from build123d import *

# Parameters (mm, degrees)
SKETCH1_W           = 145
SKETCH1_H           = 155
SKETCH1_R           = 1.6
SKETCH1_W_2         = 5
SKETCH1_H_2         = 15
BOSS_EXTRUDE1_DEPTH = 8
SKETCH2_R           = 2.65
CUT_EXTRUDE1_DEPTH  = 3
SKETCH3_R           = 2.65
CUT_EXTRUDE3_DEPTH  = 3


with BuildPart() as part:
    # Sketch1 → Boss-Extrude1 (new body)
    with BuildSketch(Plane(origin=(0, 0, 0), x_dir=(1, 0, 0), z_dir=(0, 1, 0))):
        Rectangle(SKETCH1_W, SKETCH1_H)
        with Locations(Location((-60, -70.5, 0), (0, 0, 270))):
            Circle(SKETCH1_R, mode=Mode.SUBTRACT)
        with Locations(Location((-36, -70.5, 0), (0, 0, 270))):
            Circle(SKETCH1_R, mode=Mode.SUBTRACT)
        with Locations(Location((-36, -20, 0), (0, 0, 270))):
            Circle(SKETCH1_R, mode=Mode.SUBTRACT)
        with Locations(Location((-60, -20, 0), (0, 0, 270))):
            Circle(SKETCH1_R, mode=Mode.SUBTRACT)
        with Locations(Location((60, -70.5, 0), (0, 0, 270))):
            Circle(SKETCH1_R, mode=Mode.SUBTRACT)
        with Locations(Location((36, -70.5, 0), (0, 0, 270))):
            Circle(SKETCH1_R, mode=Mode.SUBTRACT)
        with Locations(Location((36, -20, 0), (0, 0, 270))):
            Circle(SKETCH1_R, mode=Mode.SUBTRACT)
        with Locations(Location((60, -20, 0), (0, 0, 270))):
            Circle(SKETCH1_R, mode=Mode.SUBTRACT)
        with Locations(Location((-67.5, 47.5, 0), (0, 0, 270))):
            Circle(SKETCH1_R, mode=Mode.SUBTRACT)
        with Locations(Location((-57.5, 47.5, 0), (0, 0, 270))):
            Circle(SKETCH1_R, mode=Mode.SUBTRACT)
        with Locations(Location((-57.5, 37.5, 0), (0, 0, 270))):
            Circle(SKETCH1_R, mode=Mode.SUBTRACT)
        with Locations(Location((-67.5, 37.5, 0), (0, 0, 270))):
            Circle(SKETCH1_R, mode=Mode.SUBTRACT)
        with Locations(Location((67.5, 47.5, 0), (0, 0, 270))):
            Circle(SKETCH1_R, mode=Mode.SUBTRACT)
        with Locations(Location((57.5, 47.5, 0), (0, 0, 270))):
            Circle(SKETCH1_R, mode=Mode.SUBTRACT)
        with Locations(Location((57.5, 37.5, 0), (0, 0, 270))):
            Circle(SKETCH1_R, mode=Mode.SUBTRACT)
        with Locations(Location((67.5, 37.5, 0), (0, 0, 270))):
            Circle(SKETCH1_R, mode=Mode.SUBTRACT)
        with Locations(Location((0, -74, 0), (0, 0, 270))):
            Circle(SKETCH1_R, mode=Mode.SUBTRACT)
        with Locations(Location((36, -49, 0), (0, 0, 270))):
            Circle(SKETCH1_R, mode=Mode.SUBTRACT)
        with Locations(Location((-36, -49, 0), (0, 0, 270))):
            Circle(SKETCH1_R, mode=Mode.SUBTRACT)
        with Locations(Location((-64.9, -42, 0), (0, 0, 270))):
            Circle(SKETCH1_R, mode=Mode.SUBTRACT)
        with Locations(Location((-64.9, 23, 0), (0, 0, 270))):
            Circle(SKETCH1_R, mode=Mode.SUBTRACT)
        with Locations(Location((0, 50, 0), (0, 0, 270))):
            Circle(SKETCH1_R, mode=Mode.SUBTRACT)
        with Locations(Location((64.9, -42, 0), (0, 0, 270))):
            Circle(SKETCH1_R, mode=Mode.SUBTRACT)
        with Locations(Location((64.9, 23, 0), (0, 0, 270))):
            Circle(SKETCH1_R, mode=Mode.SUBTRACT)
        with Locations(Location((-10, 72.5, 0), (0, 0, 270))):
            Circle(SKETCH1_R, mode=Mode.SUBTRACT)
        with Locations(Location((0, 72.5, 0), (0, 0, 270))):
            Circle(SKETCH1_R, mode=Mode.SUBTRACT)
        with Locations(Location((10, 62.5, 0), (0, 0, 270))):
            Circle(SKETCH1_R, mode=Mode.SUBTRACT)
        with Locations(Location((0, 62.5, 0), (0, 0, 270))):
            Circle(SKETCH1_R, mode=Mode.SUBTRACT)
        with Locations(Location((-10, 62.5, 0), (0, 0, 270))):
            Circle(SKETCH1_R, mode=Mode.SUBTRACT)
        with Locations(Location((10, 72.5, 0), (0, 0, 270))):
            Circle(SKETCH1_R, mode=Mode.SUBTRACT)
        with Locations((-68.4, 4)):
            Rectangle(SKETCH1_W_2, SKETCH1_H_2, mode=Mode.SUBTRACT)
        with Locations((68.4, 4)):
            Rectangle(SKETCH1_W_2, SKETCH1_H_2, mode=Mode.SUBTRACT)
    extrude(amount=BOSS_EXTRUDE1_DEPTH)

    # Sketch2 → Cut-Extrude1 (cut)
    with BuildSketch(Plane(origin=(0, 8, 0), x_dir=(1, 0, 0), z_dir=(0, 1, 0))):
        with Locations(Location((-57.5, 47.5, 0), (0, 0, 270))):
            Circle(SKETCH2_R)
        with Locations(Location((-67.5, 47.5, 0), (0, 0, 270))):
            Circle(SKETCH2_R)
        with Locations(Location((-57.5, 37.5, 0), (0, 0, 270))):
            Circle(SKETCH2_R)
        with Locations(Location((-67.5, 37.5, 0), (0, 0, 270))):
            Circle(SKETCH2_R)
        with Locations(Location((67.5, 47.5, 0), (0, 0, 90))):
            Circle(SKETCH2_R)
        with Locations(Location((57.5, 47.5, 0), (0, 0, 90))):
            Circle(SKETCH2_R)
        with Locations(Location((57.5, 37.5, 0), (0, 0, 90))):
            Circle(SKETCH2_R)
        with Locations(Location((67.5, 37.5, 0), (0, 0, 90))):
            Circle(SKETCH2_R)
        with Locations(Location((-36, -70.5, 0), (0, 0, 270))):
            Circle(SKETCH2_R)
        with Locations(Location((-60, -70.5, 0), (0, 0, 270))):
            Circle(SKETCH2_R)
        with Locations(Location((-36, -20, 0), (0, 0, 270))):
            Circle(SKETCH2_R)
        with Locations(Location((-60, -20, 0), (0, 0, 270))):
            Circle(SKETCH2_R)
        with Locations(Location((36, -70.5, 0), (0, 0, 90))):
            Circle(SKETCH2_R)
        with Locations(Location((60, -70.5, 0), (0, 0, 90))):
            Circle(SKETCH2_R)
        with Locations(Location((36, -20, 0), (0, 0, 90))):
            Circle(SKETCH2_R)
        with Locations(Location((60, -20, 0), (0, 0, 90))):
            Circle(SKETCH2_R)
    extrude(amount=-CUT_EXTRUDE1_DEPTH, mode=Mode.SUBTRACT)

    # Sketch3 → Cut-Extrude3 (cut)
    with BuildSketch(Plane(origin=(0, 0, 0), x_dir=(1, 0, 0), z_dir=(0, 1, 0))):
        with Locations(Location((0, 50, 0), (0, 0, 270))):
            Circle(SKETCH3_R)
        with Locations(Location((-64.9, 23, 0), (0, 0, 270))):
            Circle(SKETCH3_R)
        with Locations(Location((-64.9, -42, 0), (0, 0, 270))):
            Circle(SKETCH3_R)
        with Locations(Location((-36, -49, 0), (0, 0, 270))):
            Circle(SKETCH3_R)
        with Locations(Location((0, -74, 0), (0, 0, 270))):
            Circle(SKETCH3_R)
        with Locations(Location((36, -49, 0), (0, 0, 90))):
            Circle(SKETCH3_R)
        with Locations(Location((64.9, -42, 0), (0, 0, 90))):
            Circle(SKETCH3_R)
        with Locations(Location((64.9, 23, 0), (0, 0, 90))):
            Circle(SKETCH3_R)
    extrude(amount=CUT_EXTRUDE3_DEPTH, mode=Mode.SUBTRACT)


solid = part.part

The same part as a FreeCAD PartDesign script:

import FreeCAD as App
import Part
import Sketcher
from FreeCAD import Vector

doc = App.newDocument("Part")
params = doc.addObject("Spreadsheet::Sheet", "Params")
for row, (alias, value) in enumerate([
    ("sketch1_diameter", "3.2 mm"),
    ("sketch1_width", "145 mm"),
    ("sketch1_width2", "5 mm"),
    ("sketch1_height", "155 mm"),
    ("sketch1_height2", "15 mm"),
    ("pad1_length", "8 mm"),
    ("sketch2_diameter", "5.3 mm"),
    ("pocket1_length", "3 mm"),
    ("sketch3_diameter", "5.3 mm"),
    ("pocket2_length", "3 mm"),
], start=1):
    params.set(f"A{row}", alias)
    params.set(f"B{row}", "=" + value)
    params.setAlias(f"B{row}", alias)

body = doc.addObject("PartDesign::Body", "Body")

sketch1 = body.newObject("Sketcher::SketchObject", "Sketch")
sketch1.AttachmentSupport = (doc.getObject("XZ_Plane"), [""])
sketch1.MapMode = "FlatFace"
sketch1.addGeometry([
    Part.LineSegment(Vector(-72.5, -77.5, 0), Vector(-72.5, 77.5, 0)),
    Part.LineSegment(Vector(-72.5, 77.5, 0), Vector(72.5, 77.5, 0)),
    Part.LineSegment(Vector(72.5, 77.5, 0), Vector(72.5, -77.5, 0)),
    Part.LineSegment(Vector(72.5, -77.5, 0), Vector(-72.5, -77.5, 0)),
    Part.Circle(Vector(-60, 70.5, 0), Vector(0, 0, 1), 1.6),
    Part.Circle(Vector(-36, 70.5, 0), Vector(0, 0, 1), 1.6),
    Part.Circle(Vector(-64.9, 42, 0), Vector(0, 0, 1), 1.6),
    Part.Circle(Vector(-36, 49, 0), Vector(0, 0, 1), 1.6),
    Part.Circle(Vector(-60, 20, 0), Vector(0, 0, 1), 1.6),
    Part.Circle(Vector(-36, 20, 0), Vector(0, 0, 1), 1.6),
    Part.Circle(Vector(0, 74, 0), Vector(0, 0, 1), 1.6),
    Part.Circle(Vector(36, 70.5, 0), Vector(0, 0, 1), 1.6),
    Part.Circle(Vector(60, 70.5, 0), Vector(0, 0, 1), 1.6),
    Part.Circle(Vector(36, 49, 0), Vector(0, 0, 1), 1.6),
    Part.Circle(Vector(64.9, 42, 0), Vector(0, 0, 1), 1.6),
    Part.Circle(Vector(36, 20, 0), Vector(0, 0, 1), 1.6),
    Part.Circle(Vector(60, 20, 0), Vector(0, 0, 1), 1.6),
    Part.LineSegment(Vector(-65.9, 3.5, 0), Vector(-70.9, 3.5, 0)),
    Part.LineSegment(Vector(-70.9, 3.5, 0), Vector(-70.9, -11.5, 0)),
    Part.LineSegment(Vector(-70.9, -11.5, 0), Vector(-65.9, -11.5, 0)),
    Part.LineSegment(Vector(-65.9, -11.5, 0), Vector(-65.9, 3.5, 0)),
    Part.Circle(Vector(-64.9, -23, 0), Vector(0, 0, 1), 1.6),
    Part.Circle(Vector(-67.5, -37.5, 0), Vector(0, 0, 1), 1.6),
    Part.Circle(Vector(-57.5, -37.5, 0), Vector(0, 0, 1), 1.6),
    Part.Circle(Vector(-67.5, -47.5, 0), Vector(0, 0, 1), 1.6),
    Part.Circle(Vector(-57.5, -47.5, 0), Vector(0, 0, 1), 1.6),
    Part.Circle(Vector(-10, -62.5, 0), Vector(0, 0, 1), 1.6),
    Part.Circle(Vector(-10, -72.5, 0), Vector(0, 0, 1), 1.6),
    Part.LineSegment(Vector(70.9, 3.5, 0), Vector(65.9, 3.5, 0)),
    Part.LineSegment(Vector(65.9, 3.5, 0), Vector(65.9, -11.5, 0)),
    Part.LineSegment(Vector(65.9, -11.5, 0), Vector(70.9, -11.5, 0)),
    Part.LineSegment(Vector(70.9, -11.5, 0), Vector(70.9, 3.5, 0)),
    Part.Circle(Vector(64.9, -23, 0), Vector(0, 0, 1), 1.6),
    Part.Circle(Vector(0, -50, 0), Vector(0, 0, 1), 1.6),
    Part.Circle(Vector(0, -62.5, 0), Vector(0, 0, 1), 1.6),
    Part.Circle(Vector(10, -62.5, 0), Vector(0, 0, 1), 1.6),
    Part.Circle(Vector(0, -72.5, 0), Vector(0, 0, 1), 1.6),
    Part.Circle(Vector(10, -72.5, 0), Vector(0, 0, 1), 1.6),
    Part.Circle(Vector(57.5, -37.5, 0), Vector(0, 0, 1), 1.6),
    Part.Circle(Vector(67.5, -37.5, 0), Vector(0, 0, 1), 1.6),
    Part.Circle(Vector(57.5, -47.5, 0), Vector(0, 0, 1), 1.6),
    Part.Circle(Vector(67.5, -47.5, 0), Vector(0, 0, 1), 1.6),
], False)
sketch1.addConstraint([
    Sketcher.Constraint("Coincident", 0, 2, 1, 1),
    Sketcher.Constraint("Coincident", 1, 2, 2, 1),
    Sketcher.Constraint("Coincident", 2, 2, 3, 1),
    Sketcher.Constraint("Coincident", 3, 2, 0, 1),
    Sketcher.Constraint("Coincident", 17, 2, 18, 1),
    Sketcher.Constraint("Coincident", 18, 2, 19, 1),
    Sketcher.Constraint("Coincident", 19, 2, 20, 1),
    Sketcher.Constraint("Coincident", 20, 2, 17, 1),
    Sketcher.Constraint("Coincident", 28, 2, 29, 1),
    Sketcher.Constraint("Coincident", 29, 2, 30, 1),
    Sketcher.Constraint("Coincident", 30, 2, 31, 1),
    Sketcher.Constraint("Coincident", 31, 2, 28, 1),
    Sketcher.Constraint("Vertical", 0),
    Sketcher.Constraint("Horizontal", 1),
    Sketcher.Constraint("Vertical", 2),
    Sketcher.Constraint("Horizontal", 3),
    Sketcher.Constraint("Horizontal", 17),
    Sketcher.Constraint("Vertical", 18),
    Sketcher.Constraint("Horizontal", 19),
    Sketcher.Constraint("Vertical", 20),
    Sketcher.Constraint("Horizontal", 28),
    Sketcher.Constraint("Vertical", 29),
    Sketcher.Constraint("Horizontal", 30),
    Sketcher.Constraint("Vertical", 31),
    Sketcher.Constraint("Equal", 4, 5),
    Sketcher.Constraint("Equal", 5, 6),
    Sketcher.Constraint("Equal", 6, 7),
    Sketcher.Constraint("Equal", 7, 8),
    Sketcher.Constraint("Equal", 8, 9),
    Sketcher.Constraint("Equal", 9, 10),
    Sketcher.Constraint("Equal", 10, 11),
    Sketcher.Constraint("Equal", 11, 12),
    Sketcher.Constraint("Equal", 12, 13),
    Sketcher.Constraint("Equal", 13, 14),
    Sketcher.Constraint("Equal", 14, 15),
    Sketcher.Constraint("Equal", 15, 16),
    Sketcher.Constraint("Equal", 16, 21),
    Sketcher.Constraint("Equal", 21, 22),
    Sketcher.Constraint("Equal", 22, 23),
    Sketcher.Constraint("Equal", 23, 24),
    Sketcher.Constraint("Equal", 24, 25),
    Sketcher.Constraint("Equal", 25, 26),
    Sketcher.Constraint("Equal", 26, 27),
    Sketcher.Constraint("Equal", 27, 32),
    Sketcher.Constraint("Equal", 32, 33),
    Sketcher.Constraint("Equal", 33, 34),
    Sketcher.Constraint("Equal", 34, 35),
    Sketcher.Constraint("Equal", 35, 36),
    Sketcher.Constraint("Equal", 36, 37),
    Sketcher.Constraint("Equal", 37, 38),
    Sketcher.Constraint("Equal", 38, 39),
    Sketcher.Constraint("Equal", 39, 40),
    Sketcher.Constraint("Equal", 40, 41),
    Sketcher.Constraint("Symmetric", 0, 2, 2, 2, -1, 1),
    Sketcher.Constraint("Symmetric", 5, 3, 11, 3, -2),
    Sketcher.Constraint("Symmetric", 4, 3, 12, 3, -2),
    Sketcher.Constraint("Symmetric", 7, 3, 13, 3, -2),
    Sketcher.Constraint("Symmetric", 6, 3, 14, 3, -2),
    Sketcher.Constraint("Symmetric", 9, 3, 15, 3, -2),
    Sketcher.Constraint("Symmetric", 8, 3, 16, 3, -2),
    Sketcher.Constraint("Symmetric", 21, 3, 32, 3, -2),
    Sketcher.Constraint("Symmetric", 26, 3, 35, 3, -2),
    Sketcher.Constraint("Symmetric", 27, 3, 37, 3, -2),
    Sketcher.Constraint("Symmetric", 23, 3, 38, 3, -2),
    Sketcher.Constraint("Symmetric", 22, 3, 39, 3, -2),
    Sketcher.Constraint("Symmetric", 25, 3, 40, 3, -2),
    Sketcher.Constraint("Symmetric", 24, 3, 41, 3, -2),
    Sketcher.Constraint("Symmetric", 20, 2, 28, 2, -2),
    Sketcher.Constraint("Symmetric", 18, 2, 30, 2, -2),
    Sketcher.Constraint("PointOnObject", 10, 3, -2),
    Sketcher.Constraint("PointOnObject", 33, 3, -2),
    Sketcher.Constraint("PointOnObject", 34, 3, -2),
    Sketcher.Constraint("PointOnObject", 36, 3, -2),
    Sketcher.Constraint("Horizontal", 4, 3, 5, 3),
    Sketcher.Constraint("Horizontal", 8, 3, 9, 3),
    Sketcher.Constraint("Horizontal", 22, 3, 23, 3),
    Sketcher.Constraint("Horizontal", 24, 3, 25, 3),
    Sketcher.Constraint("Horizontal", 26, 3, 34, 3),
    Sketcher.Constraint("Horizontal", 27, 3, 36, 3),
    Sketcher.Constraint("Vertical", 5, 3, 7, 3),
    Sketcher.Constraint("Vertical", 4, 3, 8, 3),
    Sketcher.Constraint("Vertical", 7, 3, 9, 3),
    Sketcher.Constraint("Vertical", 6, 3, 21, 3),
    Sketcher.Constraint("Vertical", 22, 3, 24, 3),
    Sketcher.Constraint("Vertical", 23, 3, 25, 3),
    Sketcher.Constraint("Vertical", 26, 3, 27, 3),
    Sketcher.Constraint("Diameter", 4, 3.2),
    Sketcher.Constraint("DistanceX", 1, 1, 1, 2, 145.0),
    Sketcher.Constraint("DistanceX", 17, 2, 17, 1, 5.0),
    Sketcher.Constraint("DistanceY", 0, 1, 0, 2, 155.0),
    Sketcher.Constraint("DistanceY", 18, 2, 18, 1, 15.0),
    Sketcher.Constraint("DistanceX", 4, 3, -1, 1, 60.0),
    Sketcher.Constraint("DistanceX", 5, 3, -1, 1, 36.0),
    Sketcher.Constraint("DistanceY", -1, 1, 6, 3, 42.0),
    Sketcher.Constraint("DistanceY", -1, 1, 7, 3, 49.0),
    Sketcher.Constraint("DistanceY", -1, 1, 8, 3, 20.0),
    Sketcher.Constraint("DistanceY", -1, 1, 10, 3, 74.0),
    Sketcher.Constraint("DistanceY", 21, 3, -1, 1, 23.0),
    Sketcher.Constraint("DistanceX", 26, 3, -1, 1, 10.0),
    Sketcher.Constraint("DistanceY", 33, 3, -1, 1, 50.0),
    Sketcher.Constraint("DistanceX", 22, 3, 23, 3, 10.0),
    Sketcher.Constraint("DistanceY", 24, 3, 22, 3, 10.0),
    Sketcher.Constraint("DistanceY", 26, 3, 25, 3, 15.0),
    Sketcher.Constraint("DistanceY", 27, 3, 26, 3, 10.0),
    Sketcher.Constraint("DistanceY", 4, 3, 0, 2, 7.0),
    Sketcher.Constraint("DistanceX", 41, 3, 2, 2, 5.0),
    Sketcher.Constraint("DistanceY", 2, 2, 41, 3, 30.0),
    Sketcher.Constraint("DistanceX", 17, 2, 21, 3, 6.0),
    Sketcher.Constraint("DistanceY", 22, 3, 17, 2, 41.0),
    Sketcher.Constraint("DistanceX", 6, 3, -1, 1, 64.9),
])
sketch1.setExpression("Constraints[86]", "Params.sketch1_diameter")
sketch1.setExpression("Constraints[87]", "Params.sketch1_width")
sketch1.setExpression("Constraints[88]", "Params.sketch1_width2")
sketch1.setExpression("Constraints[89]", "Params.sketch1_height")
sketch1.setExpression("Constraints[90]", "Params.sketch1_height2")
pad1 = body.newObject("PartDesign::Pad", "Pad")
pad1.Profile = sketch1
pad1.setExpression("Length", "Params.pad1_length")
pad1.Reversed = True

sketch2 = body.newObject("Sketcher::SketchObject", "Sketch001")
sketch2.AttachmentSupport = (doc.getObject("XZ_Plane"), [""])
sketch2.MapMode = "FlatFace"
sketch2.AttachmentOffset = App.Placement(Vector(0, 0, -8), App.Rotation())
sketch2.addGeometry([
    Part.Circle(Vector(-57.5, -47.5, 0), Vector(0, 0, 1), 2.6),
    Part.Circle(Vector(-67.5, -47.5, 0), Vector(0, 0, 1), 2.6),
    Part.Circle(Vector(-57.5, -37.5, 0), Vector(0, 0, 1), 2.6),
    Part.Circle(Vector(-67.5, -37.5, 0), Vector(0, 0, 1), 2.6),
    Part.Circle(Vector(67.5, -47.5, 0), Vector(0, 0, 1), 2.6),
    Part.Circle(Vector(57.5, -47.5, 0), Vector(0, 0, 1), 2.6),
    Part.Circle(Vector(57.5, -37.5, 0), Vector(0, 0, 1), 2.6),
    Part.Circle(Vector(67.5, -37.5, 0), Vector(0, 0, 1), 2.6),
    Part.Circle(Vector(-36, 70.5, 0), Vector(0, 0, 1), 2.6),
    Part.Circle(Vector(-60, 70.5, 0), Vector(0, 0, 1), 2.6),
    Part.Circle(Vector(-36, 20, 0), Vector(0, 0, 1), 2.6),
    Part.Circle(Vector(-60, 20, 0), Vector(0, 0, 1), 2.6),
    Part.Circle(Vector(36, 70.5, 0), Vector(0, 0, 1), 2.6),
    Part.Circle(Vector(60, 70.5, 0), Vector(0, 0, 1), 2.6),
    Part.Circle(Vector(36, 20, 0), Vector(0, 0, 1), 2.6),
    Part.Circle(Vector(60, 20, 0), Vector(0, 0, 1), 2.6),
], False)
sketch2.addConstraint([
    Sketcher.Constraint("Equal", 0, 1),
    Sketcher.Constraint("Equal", 1, 2),
    Sketcher.Constraint("Equal", 2, 3),
    Sketcher.Constraint("Equal", 3, 4),
    Sketcher.Constraint("Equal", 4, 5),
    Sketcher.Constraint("Equal", 5, 6),
    Sketcher.Constraint("Equal", 6, 7),
    Sketcher.Constraint("Equal", 7, 8),
    Sketcher.Constraint("Equal", 8, 9),
    Sketcher.Constraint("Equal", 9, 10),
    Sketcher.Constraint("Equal", 10, 11),
    Sketcher.Constraint("Equal", 11, 12),
    Sketcher.Constraint("Equal", 12, 13),
    Sketcher.Constraint("Equal", 13, 14),
    Sketcher.Constraint("Equal", 14, 15),
    Sketcher.Constraint("Symmetric", 1, 3, 4, 3, -2),
    Sketcher.Constraint("Symmetric", 0, 3, 5, 3, -2),
    Sketcher.Constraint("Symmetric", 2, 3, 6, 3, -2),
    Sketcher.Constraint("Symmetric", 3, 3, 7, 3, -2),
    Sketcher.Constraint("Symmetric", 8, 3, 12, 3, -2),
    Sketcher.Constraint("Symmetric", 9, 3, 13, 3, -2),
    Sketcher.Constraint("Symmetric", 10, 3, 14, 3, -2),
    Sketcher.Constraint("Symmetric", 11, 3, 15, 3, -2),
    Sketcher.Constraint("Horizontal", 0, 3, 1, 3),
    Sketcher.Constraint("Horizontal", 2, 3, 3, 3),
    Sketcher.Constraint("Horizontal", 8, 3, 9, 3),
    Sketcher.Constraint("Horizontal", 10, 3, 11, 3),
    Sketcher.Constraint("Vertical", 0, 3, 2, 3),
    Sketcher.Constraint("Vertical", 1, 3, 3, 3),
    Sketcher.Constraint("Vertical", 8, 3, 10, 3),
    Sketcher.Constraint("Vertical", 9, 3, 11, 3),
    Sketcher.Constraint("Diameter", 0, 5.3),
    Sketcher.Constraint("DistanceX", 8, 3, -1, 1, 36.0),
    Sketcher.Constraint("DistanceX", 9, 3, -1, 1, 60.0),
    Sketcher.Constraint("DistanceY", -1, 1, 10, 3, 20.0),
    Sketcher.Constraint("DistanceX", 1, 3, 0, 3, 10.0),
    Sketcher.Constraint("DistanceY", 0, 3, 2, 3, 10.0),
    Sketcher.Constraint("DistanceX", 0, 3, 4, 3, 125.0),
    Sketcher.Constraint("DistanceY", 2, 3, 8, 3, 108.0),
    Sketcher.Constraint("DistanceY", 0, 3, -1, 1, 47.5),
])
sketch2.setExpression("Constraints[31]", "Params.sketch2_diameter")
pocket1 = body.newObject("PartDesign::Pocket", "Pocket")
pocket1.Profile = sketch2
pocket1.setExpression("Length", "Params.pocket1_length")
pocket1.Reversed = True

sketch3 = body.newObject("Sketcher::SketchObject", "Sketch002")
sketch3.AttachmentSupport = (doc.getObject("XZ_Plane"), [""])
sketch3.MapMode = "FlatFace"
sketch3.addGeometry([
    Part.Circle(Vector(0, -50, 0), Vector(0, 0, 1), 2.6),
    Part.Circle(Vector(-64.9, -23, 0), Vector(0, 0, 1), 2.6),
    Part.Circle(Vector(-64.9, 42, 0), Vector(0, 0, 1), 2.6),
    Part.Circle(Vector(-36, 49, 0), Vector(0, 0, 1), 2.6),
    Part.Circle(Vector(0, 74, 0), Vector(0, 0, 1), 2.6),
    Part.Circle(Vector(36, 49, 0), Vector(0, 0, 1), 2.6),
    Part.Circle(Vector(64.9, 42, 0), Vector(0, 0, 1), 2.6),
    Part.Circle(Vector(64.9, -23, 0), Vector(0, 0, 1), 2.6),
], False)
sketch3.addConstraint([
    Sketcher.Constraint("Equal", 0, 1),
    Sketcher.Constraint("Equal", 1, 2),
    Sketcher.Constraint("Equal", 2, 3),
    Sketcher.Constraint("Equal", 3, 4),
    Sketcher.Constraint("Equal", 4, 5),
    Sketcher.Constraint("Equal", 5, 6),
    Sketcher.Constraint("Equal", 6, 7),
    Sketcher.Constraint("Symmetric", 3, 3, 5, 3, -2),
    Sketcher.Constraint("Symmetric", 2, 3, 6, 3, -2),
    Sketcher.Constraint("Symmetric", 1, 3, 7, 3, -2),
    Sketcher.Constraint("PointOnObject", 0, 3, -2),
    Sketcher.Constraint("PointOnObject", 4, 3, -2),
    Sketcher.Constraint("Vertical", 1, 3, 2, 3),
    Sketcher.Constraint("Diameter", 0, 5.3),
    Sketcher.Constraint("DistanceY", 0, 3, -1, 1, 50.0),
    Sketcher.Constraint("DistanceY", 1, 3, -1, 1, 23.0),
    Sketcher.Constraint("DistanceY", -1, 1, 2, 3, 42.0),
    Sketcher.Constraint("DistanceX", 3, 3, -1, 1, 36.0),
    Sketcher.Constraint("DistanceY", -1, 1, 3, 3, 49.0),
    Sketcher.Constraint("DistanceY", -1, 1, 4, 3, 74.0),
    Sketcher.Constraint("DistanceX", 1, 3, -1, 1, 64.9),
])
sketch3.setExpression("Constraints[13]", "Params.sketch3_diameter")
pocket2 = body.newObject("PartDesign::Pocket", "Pocket001")
pocket2.Profile = sketch3
pocket2.setExpression("Length", "Params.pocket2_length")

doc.recompute()
